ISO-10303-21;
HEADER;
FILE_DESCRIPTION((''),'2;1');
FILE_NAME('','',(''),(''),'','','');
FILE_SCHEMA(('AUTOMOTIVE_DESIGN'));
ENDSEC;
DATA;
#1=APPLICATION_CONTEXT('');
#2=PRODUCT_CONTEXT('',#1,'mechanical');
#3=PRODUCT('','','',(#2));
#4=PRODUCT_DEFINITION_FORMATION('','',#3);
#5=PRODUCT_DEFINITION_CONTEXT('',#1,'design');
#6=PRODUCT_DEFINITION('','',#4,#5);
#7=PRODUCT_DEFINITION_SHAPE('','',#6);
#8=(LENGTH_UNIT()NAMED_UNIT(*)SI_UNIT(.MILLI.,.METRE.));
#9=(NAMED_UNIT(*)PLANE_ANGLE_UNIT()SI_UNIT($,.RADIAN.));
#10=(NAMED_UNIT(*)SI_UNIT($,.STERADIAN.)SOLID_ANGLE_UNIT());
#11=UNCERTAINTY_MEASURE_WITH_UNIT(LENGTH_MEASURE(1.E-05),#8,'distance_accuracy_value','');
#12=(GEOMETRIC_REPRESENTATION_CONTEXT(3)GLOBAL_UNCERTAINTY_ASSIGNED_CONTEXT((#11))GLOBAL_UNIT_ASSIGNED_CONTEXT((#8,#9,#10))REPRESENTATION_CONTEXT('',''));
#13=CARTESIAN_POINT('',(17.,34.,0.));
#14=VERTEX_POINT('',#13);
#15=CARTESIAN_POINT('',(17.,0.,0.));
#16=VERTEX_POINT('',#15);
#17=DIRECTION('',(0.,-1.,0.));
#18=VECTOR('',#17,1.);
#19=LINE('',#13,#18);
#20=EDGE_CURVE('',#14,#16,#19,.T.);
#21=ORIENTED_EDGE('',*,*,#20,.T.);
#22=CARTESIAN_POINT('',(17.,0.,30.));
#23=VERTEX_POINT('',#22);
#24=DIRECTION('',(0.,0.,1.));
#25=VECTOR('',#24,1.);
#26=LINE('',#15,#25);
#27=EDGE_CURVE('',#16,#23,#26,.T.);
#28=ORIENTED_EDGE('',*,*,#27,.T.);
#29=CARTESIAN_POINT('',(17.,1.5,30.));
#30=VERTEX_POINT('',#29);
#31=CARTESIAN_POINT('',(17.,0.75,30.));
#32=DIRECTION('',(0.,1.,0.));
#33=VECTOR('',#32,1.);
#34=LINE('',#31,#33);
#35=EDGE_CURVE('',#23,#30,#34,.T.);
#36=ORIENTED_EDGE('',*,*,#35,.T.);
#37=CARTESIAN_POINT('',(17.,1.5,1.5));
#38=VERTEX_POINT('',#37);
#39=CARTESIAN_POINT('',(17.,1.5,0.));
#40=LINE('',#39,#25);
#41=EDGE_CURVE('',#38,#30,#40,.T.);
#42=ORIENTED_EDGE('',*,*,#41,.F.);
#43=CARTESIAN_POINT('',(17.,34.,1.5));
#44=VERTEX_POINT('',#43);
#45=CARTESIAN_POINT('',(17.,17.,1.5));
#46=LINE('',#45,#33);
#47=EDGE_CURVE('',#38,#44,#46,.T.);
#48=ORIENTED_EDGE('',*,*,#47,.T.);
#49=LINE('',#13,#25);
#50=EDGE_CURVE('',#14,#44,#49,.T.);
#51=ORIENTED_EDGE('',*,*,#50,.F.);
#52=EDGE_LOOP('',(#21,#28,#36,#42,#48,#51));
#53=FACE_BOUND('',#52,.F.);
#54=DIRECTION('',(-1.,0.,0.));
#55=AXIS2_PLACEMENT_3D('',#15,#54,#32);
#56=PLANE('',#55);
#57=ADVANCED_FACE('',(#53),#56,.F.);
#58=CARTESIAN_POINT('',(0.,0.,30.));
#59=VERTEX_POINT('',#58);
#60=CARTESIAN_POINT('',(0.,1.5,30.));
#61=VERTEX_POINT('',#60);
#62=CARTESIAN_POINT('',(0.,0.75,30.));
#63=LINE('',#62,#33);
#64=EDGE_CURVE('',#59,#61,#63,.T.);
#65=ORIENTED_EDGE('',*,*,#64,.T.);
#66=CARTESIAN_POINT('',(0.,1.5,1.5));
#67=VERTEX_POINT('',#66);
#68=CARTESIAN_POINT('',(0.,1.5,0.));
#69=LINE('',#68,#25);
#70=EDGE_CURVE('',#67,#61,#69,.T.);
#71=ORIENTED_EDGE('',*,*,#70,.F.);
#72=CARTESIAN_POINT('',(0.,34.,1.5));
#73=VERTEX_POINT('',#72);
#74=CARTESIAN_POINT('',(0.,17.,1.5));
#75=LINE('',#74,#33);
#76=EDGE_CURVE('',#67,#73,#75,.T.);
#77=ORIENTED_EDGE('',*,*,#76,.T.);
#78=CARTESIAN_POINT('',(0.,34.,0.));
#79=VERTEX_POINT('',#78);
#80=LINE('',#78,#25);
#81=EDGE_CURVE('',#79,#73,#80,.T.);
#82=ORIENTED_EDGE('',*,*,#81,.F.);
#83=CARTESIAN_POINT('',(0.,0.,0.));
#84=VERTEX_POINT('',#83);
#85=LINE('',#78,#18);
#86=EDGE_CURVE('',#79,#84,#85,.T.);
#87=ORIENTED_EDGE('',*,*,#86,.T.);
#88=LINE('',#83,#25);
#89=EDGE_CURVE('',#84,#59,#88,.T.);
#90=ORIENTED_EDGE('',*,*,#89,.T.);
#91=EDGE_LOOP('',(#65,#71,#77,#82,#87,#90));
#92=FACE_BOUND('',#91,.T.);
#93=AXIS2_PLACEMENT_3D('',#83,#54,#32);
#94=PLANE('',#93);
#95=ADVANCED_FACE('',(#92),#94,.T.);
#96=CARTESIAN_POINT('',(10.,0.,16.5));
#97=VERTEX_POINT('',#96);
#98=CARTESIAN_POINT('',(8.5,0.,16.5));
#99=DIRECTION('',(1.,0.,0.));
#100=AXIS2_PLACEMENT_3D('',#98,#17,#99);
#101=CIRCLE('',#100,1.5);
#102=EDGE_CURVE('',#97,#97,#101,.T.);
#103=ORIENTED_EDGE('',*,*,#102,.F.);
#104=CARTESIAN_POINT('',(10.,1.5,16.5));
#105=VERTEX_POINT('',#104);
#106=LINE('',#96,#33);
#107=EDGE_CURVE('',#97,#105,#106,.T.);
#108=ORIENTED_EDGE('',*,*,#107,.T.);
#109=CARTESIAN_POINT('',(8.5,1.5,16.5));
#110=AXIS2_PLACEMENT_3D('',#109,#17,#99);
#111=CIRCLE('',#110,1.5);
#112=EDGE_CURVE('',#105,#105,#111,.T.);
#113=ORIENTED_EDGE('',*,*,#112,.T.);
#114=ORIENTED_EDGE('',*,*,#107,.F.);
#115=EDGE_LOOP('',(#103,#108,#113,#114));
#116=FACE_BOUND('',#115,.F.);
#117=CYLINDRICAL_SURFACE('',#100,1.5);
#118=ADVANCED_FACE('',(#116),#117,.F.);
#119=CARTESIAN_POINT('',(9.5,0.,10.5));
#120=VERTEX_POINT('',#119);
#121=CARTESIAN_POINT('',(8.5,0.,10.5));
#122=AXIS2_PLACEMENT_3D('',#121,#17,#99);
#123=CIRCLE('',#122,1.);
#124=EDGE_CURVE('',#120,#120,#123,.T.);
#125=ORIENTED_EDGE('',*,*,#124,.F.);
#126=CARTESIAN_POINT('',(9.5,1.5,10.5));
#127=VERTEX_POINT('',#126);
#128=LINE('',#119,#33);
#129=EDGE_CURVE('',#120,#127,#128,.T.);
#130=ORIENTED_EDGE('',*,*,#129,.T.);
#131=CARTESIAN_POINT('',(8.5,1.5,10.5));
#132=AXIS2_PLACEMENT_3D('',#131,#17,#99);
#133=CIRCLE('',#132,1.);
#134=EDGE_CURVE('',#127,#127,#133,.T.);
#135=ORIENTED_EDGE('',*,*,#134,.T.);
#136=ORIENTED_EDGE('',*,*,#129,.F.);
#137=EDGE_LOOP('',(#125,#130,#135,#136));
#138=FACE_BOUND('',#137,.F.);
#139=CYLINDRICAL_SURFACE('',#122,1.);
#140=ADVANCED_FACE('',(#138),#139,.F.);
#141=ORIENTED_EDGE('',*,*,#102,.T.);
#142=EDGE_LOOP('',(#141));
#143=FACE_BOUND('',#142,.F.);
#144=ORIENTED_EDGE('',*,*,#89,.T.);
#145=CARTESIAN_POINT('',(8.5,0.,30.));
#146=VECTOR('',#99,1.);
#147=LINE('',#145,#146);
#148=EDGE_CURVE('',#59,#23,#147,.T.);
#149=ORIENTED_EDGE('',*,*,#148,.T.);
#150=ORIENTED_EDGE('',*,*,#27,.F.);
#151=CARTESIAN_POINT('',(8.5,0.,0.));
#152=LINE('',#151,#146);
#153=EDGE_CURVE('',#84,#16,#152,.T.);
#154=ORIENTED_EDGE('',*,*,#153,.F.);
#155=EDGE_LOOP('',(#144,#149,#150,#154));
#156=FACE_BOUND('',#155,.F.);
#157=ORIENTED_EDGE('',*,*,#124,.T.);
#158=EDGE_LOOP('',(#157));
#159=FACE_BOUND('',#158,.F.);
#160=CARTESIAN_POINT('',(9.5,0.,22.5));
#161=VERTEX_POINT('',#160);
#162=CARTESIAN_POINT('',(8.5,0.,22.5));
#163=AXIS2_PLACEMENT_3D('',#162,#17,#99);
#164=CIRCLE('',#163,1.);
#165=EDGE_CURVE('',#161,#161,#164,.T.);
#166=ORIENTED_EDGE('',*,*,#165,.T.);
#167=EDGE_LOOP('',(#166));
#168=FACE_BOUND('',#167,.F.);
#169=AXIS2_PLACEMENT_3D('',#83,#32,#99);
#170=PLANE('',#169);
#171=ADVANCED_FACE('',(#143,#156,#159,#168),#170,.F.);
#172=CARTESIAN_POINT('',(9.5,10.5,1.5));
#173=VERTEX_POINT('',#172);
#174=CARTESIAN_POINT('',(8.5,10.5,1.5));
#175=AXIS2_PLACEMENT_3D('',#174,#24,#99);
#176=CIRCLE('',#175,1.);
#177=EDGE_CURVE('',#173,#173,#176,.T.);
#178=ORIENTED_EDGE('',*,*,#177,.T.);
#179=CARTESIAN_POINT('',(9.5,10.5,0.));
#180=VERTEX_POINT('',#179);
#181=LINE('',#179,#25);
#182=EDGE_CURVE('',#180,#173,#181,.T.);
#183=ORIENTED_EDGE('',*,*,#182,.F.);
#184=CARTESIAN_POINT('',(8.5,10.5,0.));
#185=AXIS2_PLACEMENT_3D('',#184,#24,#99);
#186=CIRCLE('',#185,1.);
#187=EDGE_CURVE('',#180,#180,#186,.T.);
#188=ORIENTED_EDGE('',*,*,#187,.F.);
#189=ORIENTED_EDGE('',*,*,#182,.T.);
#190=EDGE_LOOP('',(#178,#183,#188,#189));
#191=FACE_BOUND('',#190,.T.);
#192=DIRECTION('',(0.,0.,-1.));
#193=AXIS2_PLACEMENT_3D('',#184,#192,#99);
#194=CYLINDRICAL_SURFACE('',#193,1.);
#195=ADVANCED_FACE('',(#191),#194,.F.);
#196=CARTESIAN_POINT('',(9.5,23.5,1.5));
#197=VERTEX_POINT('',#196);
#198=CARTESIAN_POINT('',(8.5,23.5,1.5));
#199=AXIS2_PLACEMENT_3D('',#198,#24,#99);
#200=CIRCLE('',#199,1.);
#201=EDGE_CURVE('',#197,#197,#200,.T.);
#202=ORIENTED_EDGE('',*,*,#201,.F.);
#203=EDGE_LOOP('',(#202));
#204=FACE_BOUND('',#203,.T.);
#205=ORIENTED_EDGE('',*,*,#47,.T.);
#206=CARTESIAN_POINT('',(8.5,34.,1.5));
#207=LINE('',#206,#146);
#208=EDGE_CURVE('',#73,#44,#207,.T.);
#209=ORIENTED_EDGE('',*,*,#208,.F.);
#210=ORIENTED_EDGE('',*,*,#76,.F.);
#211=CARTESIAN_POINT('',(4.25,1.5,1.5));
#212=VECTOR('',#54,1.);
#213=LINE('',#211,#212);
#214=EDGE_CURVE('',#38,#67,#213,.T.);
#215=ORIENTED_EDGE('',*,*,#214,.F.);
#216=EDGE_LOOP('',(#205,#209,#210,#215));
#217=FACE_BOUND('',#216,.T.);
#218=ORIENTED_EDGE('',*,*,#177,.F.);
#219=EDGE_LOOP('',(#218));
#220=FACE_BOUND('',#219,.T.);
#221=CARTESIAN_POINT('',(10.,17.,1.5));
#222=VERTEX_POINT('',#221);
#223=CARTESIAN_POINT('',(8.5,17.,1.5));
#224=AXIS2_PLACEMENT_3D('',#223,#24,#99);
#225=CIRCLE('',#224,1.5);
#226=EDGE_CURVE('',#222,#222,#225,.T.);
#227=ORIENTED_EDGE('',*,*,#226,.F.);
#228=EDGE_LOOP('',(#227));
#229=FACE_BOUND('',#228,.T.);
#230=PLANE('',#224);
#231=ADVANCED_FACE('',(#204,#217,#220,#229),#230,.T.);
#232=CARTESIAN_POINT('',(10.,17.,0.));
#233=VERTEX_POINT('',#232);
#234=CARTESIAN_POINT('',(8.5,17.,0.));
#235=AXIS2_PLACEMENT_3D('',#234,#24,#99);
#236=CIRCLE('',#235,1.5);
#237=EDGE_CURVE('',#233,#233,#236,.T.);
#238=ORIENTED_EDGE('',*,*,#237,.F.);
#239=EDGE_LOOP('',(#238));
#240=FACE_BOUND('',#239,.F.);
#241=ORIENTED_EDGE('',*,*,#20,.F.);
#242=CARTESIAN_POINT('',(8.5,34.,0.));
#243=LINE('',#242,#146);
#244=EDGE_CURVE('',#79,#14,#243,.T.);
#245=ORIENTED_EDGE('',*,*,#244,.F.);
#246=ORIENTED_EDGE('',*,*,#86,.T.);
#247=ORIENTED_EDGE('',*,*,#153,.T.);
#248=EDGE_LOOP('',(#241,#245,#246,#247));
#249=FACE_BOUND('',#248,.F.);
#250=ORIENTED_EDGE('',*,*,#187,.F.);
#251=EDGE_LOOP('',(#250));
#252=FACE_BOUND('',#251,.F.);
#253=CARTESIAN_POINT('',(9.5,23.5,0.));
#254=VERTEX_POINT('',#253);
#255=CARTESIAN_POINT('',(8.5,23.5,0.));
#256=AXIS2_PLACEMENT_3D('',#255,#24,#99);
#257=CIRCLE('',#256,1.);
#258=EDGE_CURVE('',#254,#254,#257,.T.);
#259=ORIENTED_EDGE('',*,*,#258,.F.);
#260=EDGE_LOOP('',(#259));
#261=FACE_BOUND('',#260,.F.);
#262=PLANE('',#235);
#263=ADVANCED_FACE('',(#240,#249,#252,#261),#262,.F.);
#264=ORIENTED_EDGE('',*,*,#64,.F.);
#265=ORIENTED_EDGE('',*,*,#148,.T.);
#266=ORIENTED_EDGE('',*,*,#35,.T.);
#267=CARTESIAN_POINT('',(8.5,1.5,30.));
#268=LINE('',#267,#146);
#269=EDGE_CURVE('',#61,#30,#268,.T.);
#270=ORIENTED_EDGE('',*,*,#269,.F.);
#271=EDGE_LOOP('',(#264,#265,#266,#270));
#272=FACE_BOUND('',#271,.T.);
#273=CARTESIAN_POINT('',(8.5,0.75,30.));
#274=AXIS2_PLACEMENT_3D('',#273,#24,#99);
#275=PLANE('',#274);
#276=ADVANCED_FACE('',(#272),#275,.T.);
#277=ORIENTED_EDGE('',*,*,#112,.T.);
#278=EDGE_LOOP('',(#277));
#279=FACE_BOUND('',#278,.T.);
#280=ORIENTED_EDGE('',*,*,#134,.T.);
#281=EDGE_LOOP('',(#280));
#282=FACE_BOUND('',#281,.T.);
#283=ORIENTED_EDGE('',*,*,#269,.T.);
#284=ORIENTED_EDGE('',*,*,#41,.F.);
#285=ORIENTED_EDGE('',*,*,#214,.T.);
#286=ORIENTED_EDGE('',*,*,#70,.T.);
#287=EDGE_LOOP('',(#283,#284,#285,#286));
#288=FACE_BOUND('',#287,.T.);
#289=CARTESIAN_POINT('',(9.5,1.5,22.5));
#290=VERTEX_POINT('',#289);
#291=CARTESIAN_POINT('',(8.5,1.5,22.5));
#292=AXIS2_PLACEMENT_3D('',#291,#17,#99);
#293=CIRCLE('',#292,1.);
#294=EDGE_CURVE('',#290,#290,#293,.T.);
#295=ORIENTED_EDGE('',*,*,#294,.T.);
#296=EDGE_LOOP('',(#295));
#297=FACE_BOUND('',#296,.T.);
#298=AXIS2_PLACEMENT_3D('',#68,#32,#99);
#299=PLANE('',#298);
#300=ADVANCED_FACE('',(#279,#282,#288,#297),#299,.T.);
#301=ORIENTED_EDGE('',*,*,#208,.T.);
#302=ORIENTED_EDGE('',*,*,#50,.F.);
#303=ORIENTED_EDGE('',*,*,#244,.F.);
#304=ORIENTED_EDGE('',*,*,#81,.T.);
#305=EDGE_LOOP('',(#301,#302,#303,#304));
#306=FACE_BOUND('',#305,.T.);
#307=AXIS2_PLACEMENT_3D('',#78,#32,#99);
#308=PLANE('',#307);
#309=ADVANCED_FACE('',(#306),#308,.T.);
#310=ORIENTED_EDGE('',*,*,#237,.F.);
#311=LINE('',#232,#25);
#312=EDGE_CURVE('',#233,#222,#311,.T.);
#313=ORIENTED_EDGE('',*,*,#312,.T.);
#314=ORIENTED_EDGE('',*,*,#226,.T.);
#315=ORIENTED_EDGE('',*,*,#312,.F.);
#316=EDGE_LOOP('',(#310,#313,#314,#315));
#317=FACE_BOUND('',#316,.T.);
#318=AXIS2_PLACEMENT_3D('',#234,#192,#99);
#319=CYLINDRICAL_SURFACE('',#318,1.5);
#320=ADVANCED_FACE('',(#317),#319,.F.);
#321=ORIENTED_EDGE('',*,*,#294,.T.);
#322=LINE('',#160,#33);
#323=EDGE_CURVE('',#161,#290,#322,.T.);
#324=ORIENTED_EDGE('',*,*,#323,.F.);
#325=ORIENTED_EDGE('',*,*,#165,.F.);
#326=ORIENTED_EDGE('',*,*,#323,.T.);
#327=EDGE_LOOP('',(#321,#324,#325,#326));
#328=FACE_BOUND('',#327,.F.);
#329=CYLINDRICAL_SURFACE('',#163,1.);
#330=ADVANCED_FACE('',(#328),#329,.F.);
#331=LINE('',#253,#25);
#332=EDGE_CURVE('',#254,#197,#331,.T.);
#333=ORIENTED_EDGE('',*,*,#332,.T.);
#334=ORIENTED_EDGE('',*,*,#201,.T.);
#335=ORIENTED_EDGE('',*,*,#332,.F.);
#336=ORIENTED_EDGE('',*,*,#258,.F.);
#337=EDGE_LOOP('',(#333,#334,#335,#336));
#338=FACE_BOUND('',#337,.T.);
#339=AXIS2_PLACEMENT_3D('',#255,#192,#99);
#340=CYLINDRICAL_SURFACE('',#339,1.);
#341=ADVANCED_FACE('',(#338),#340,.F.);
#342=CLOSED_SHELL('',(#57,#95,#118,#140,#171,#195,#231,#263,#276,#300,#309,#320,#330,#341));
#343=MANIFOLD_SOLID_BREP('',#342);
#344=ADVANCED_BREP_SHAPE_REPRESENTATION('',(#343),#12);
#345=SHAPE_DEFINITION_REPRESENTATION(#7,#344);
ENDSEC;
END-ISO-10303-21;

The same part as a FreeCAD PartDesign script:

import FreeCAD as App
import Part
import Sketcher
from FreeCAD import Vector

doc = App.newDocument("Part")
body = doc.addObject("PartDesign::Body", "Body")

# Sketch on XY plane
sketch1 = doc.addObject("Sketcher::SketchObject", "Sketch")
body.addObject(sketch1)
sketch1.AttachmentSupport = (doc.XY_Plane, [""])
sketch1.MapMode = "FlatFace"
sketch1.addGeometry([
    Part.LineSegment(Vector(0, 34, 0), Vector(0, 0, 0)),  # 0
    Part.LineSegment(Vector(0, 0, 0), Vector(17, 0, 0)),  # 1
    Part.LineSegment(Vector(17, 0, 0), Vector(17, 34, 0)),  # 2
    Part.LineSegment(Vector(17, 34, 0), Vector(0, 34, 0)),  # 3
    Part.Circle(Vector(8.5, 10.5, 0), Vector(0, 0, 1), 1),  # 4
    Part.Circle(Vector(8.5, 17, 0), Vector(0, 0, 1), 1.5),  # 5
    Part.Circle(Vector(8.5, 23.5, 0), Vector(0, 0, 1), 1),  # 6
], False)
sketch1.addConstraint([
    Sketcher.Constraint("Coincident", 0, 2, 1, 1),
    Sketcher.Constraint("Coincident", 1, 2, 2, 1),
    Sketcher.Constraint("Coincident", 2, 2, 3, 1),
    Sketcher.Constraint("Coincident", 3, 2, 0, 1),
    Sketcher.Constraint("Vertical", 0),
    Sketcher.Constraint("Horizontal", 1),
    Sketcher.Constraint("Vertical", 2),
    Sketcher.Constraint("Horizontal", 3),
    Sketcher.Constraint("Coincident", 0, 2, -1, 1),
    Sketcher.Constraint("Equal", 4, 6),
    Sketcher.Constraint("Vertical", 4, 3, 5, 3),
    Sketcher.Constraint("Vertical", 5, 3, 6, 3),
    Sketcher.Constraint("Diameter", 4, 2.0),
    Sketcher.Constraint("Diameter", 5, 3.0),
    Sketcher.Constraint("DistanceX", 1, 1, 1, 2, 17.0),
    Sketcher.Constraint("DistanceY", 0, 2, 0, 1, 34.0),
    Sketcher.Constraint("DistanceY", -1, 1, 5, 3, 17.0),
    Sketcher.Constraint("DistanceY", 4, 3, 6, 3, 13.0),
    Sketcher.Constraint("DistanceX", -1, 1, 4, 3, 8.5),
    Sketcher.Constraint("DistanceY", -1, 1, 4, 3, 10.5),
])
pad1 = doc.addObject("PartDesign::Pad", "Pad")
body.addObject(pad1)
pad1.Profile = sketch1
pad1.Length = 1.5

# Sketch on XY plane
sketch2 = doc.addObject("Sketcher::SketchObject", "Sketch001")
body.addObject(sketch2)
sketch2.AttachmentSupport = (doc.XY_Plane, [""])
sketch2.MapMode = "FlatFace"
sketch2.addGeometry([
    Part.LineSegment(Vector(0, 1.5, 0), Vector(0, 0, 0)),
    Part.LineSegment(Vector(0, 0, 0), Vector(17, 0, 0)),
    Part.LineSegment(Vector(17, 0, 0), Vector(17, 1.5, 0)),
    Part.LineSegment(Vector(17, 1.5, 0), Vector(0, 1.5, 0)),
], False)
sketch2.addConstraint([
    Sketcher.Constraint("Coincident", 0, 2, 1, 1),
    Sketcher.Constraint("Coincident", 1, 2, 2, 1),
    Sketcher.Constraint("Coincident", 2, 2, 3, 1),
    Sketcher.Constraint("Coincident", 3, 2, 0, 1),
    Sketcher.Constraint("Vertical", 0),
    Sketcher.Constraint("Horizontal", 1),
    Sketcher.Constraint("Vertical", 2),
    Sketcher.Constraint("Horizontal", 3),
    Sketcher.Constraint("Coincident", 0, 2, -1, 1),
    Sketcher.Constraint("DistanceX", 1, 1, 1, 2, 17.0),
    Sketcher.Constraint("DistanceY", 0, 2, 0, 1, 1.5),
])
pad2 = doc.addObject("PartDesign::Pad", "Pad001")
body.addObject(pad2)
pad2.Profile = sketch2
pad2.Length = 30

# Sketch on XZ plane
sketch3 = doc.addObject("Sketcher::SketchObject", "Sketch002")
body.addObject(sketch3)
sketch3.AttachmentSupport = (doc.XZ_Plane, [""])
sketch3.MapMode = "FlatFace"
sketch3.addGeometry([
    Part.Circle(Vector(8.5, 16.5, 0), Vector(0, 0, 1), 1.5),
    Part.Circle(Vector(8.5, 10.5, 0), Vector(0, 0, 1), 1),
    Part.Circle(Vector(8.5, 22.5, 0), Vector(0, 0, 1), 1),
], False)
sketch3.addConstraint([
    Sketcher.Constraint("Equal", 1, 2),
    Sketcher.Constraint("Vertical", 0, 3, 1, 3),
    Sketcher.Constraint("Vertical", 1, 3, 2, 3),
    Sketcher.Constraint("Diameter", 0, 3.0),
    Sketcher.Constraint("Diameter", 1, 2.0),
    Sketcher.Constraint("DistanceY", 1, 3, 0, 3, 6.0),
    Sketcher.Constraint("DistanceY", 0, 3, 2, 3, 6.0),
    Sketcher.Constraint("DistanceX", -1, 1, 0, 3, 8.5),
    Sketcher.Constraint("DistanceY", -1, 1, 0, 3, 16.5),
])
pocket1 = doc.addObject("PartDesign::Pocket", "Pocket")
body.addObject(pocket1)
pocket1.Profile = sketch3
pocket1.Type = "ThroughAll"

doc.recompute()
